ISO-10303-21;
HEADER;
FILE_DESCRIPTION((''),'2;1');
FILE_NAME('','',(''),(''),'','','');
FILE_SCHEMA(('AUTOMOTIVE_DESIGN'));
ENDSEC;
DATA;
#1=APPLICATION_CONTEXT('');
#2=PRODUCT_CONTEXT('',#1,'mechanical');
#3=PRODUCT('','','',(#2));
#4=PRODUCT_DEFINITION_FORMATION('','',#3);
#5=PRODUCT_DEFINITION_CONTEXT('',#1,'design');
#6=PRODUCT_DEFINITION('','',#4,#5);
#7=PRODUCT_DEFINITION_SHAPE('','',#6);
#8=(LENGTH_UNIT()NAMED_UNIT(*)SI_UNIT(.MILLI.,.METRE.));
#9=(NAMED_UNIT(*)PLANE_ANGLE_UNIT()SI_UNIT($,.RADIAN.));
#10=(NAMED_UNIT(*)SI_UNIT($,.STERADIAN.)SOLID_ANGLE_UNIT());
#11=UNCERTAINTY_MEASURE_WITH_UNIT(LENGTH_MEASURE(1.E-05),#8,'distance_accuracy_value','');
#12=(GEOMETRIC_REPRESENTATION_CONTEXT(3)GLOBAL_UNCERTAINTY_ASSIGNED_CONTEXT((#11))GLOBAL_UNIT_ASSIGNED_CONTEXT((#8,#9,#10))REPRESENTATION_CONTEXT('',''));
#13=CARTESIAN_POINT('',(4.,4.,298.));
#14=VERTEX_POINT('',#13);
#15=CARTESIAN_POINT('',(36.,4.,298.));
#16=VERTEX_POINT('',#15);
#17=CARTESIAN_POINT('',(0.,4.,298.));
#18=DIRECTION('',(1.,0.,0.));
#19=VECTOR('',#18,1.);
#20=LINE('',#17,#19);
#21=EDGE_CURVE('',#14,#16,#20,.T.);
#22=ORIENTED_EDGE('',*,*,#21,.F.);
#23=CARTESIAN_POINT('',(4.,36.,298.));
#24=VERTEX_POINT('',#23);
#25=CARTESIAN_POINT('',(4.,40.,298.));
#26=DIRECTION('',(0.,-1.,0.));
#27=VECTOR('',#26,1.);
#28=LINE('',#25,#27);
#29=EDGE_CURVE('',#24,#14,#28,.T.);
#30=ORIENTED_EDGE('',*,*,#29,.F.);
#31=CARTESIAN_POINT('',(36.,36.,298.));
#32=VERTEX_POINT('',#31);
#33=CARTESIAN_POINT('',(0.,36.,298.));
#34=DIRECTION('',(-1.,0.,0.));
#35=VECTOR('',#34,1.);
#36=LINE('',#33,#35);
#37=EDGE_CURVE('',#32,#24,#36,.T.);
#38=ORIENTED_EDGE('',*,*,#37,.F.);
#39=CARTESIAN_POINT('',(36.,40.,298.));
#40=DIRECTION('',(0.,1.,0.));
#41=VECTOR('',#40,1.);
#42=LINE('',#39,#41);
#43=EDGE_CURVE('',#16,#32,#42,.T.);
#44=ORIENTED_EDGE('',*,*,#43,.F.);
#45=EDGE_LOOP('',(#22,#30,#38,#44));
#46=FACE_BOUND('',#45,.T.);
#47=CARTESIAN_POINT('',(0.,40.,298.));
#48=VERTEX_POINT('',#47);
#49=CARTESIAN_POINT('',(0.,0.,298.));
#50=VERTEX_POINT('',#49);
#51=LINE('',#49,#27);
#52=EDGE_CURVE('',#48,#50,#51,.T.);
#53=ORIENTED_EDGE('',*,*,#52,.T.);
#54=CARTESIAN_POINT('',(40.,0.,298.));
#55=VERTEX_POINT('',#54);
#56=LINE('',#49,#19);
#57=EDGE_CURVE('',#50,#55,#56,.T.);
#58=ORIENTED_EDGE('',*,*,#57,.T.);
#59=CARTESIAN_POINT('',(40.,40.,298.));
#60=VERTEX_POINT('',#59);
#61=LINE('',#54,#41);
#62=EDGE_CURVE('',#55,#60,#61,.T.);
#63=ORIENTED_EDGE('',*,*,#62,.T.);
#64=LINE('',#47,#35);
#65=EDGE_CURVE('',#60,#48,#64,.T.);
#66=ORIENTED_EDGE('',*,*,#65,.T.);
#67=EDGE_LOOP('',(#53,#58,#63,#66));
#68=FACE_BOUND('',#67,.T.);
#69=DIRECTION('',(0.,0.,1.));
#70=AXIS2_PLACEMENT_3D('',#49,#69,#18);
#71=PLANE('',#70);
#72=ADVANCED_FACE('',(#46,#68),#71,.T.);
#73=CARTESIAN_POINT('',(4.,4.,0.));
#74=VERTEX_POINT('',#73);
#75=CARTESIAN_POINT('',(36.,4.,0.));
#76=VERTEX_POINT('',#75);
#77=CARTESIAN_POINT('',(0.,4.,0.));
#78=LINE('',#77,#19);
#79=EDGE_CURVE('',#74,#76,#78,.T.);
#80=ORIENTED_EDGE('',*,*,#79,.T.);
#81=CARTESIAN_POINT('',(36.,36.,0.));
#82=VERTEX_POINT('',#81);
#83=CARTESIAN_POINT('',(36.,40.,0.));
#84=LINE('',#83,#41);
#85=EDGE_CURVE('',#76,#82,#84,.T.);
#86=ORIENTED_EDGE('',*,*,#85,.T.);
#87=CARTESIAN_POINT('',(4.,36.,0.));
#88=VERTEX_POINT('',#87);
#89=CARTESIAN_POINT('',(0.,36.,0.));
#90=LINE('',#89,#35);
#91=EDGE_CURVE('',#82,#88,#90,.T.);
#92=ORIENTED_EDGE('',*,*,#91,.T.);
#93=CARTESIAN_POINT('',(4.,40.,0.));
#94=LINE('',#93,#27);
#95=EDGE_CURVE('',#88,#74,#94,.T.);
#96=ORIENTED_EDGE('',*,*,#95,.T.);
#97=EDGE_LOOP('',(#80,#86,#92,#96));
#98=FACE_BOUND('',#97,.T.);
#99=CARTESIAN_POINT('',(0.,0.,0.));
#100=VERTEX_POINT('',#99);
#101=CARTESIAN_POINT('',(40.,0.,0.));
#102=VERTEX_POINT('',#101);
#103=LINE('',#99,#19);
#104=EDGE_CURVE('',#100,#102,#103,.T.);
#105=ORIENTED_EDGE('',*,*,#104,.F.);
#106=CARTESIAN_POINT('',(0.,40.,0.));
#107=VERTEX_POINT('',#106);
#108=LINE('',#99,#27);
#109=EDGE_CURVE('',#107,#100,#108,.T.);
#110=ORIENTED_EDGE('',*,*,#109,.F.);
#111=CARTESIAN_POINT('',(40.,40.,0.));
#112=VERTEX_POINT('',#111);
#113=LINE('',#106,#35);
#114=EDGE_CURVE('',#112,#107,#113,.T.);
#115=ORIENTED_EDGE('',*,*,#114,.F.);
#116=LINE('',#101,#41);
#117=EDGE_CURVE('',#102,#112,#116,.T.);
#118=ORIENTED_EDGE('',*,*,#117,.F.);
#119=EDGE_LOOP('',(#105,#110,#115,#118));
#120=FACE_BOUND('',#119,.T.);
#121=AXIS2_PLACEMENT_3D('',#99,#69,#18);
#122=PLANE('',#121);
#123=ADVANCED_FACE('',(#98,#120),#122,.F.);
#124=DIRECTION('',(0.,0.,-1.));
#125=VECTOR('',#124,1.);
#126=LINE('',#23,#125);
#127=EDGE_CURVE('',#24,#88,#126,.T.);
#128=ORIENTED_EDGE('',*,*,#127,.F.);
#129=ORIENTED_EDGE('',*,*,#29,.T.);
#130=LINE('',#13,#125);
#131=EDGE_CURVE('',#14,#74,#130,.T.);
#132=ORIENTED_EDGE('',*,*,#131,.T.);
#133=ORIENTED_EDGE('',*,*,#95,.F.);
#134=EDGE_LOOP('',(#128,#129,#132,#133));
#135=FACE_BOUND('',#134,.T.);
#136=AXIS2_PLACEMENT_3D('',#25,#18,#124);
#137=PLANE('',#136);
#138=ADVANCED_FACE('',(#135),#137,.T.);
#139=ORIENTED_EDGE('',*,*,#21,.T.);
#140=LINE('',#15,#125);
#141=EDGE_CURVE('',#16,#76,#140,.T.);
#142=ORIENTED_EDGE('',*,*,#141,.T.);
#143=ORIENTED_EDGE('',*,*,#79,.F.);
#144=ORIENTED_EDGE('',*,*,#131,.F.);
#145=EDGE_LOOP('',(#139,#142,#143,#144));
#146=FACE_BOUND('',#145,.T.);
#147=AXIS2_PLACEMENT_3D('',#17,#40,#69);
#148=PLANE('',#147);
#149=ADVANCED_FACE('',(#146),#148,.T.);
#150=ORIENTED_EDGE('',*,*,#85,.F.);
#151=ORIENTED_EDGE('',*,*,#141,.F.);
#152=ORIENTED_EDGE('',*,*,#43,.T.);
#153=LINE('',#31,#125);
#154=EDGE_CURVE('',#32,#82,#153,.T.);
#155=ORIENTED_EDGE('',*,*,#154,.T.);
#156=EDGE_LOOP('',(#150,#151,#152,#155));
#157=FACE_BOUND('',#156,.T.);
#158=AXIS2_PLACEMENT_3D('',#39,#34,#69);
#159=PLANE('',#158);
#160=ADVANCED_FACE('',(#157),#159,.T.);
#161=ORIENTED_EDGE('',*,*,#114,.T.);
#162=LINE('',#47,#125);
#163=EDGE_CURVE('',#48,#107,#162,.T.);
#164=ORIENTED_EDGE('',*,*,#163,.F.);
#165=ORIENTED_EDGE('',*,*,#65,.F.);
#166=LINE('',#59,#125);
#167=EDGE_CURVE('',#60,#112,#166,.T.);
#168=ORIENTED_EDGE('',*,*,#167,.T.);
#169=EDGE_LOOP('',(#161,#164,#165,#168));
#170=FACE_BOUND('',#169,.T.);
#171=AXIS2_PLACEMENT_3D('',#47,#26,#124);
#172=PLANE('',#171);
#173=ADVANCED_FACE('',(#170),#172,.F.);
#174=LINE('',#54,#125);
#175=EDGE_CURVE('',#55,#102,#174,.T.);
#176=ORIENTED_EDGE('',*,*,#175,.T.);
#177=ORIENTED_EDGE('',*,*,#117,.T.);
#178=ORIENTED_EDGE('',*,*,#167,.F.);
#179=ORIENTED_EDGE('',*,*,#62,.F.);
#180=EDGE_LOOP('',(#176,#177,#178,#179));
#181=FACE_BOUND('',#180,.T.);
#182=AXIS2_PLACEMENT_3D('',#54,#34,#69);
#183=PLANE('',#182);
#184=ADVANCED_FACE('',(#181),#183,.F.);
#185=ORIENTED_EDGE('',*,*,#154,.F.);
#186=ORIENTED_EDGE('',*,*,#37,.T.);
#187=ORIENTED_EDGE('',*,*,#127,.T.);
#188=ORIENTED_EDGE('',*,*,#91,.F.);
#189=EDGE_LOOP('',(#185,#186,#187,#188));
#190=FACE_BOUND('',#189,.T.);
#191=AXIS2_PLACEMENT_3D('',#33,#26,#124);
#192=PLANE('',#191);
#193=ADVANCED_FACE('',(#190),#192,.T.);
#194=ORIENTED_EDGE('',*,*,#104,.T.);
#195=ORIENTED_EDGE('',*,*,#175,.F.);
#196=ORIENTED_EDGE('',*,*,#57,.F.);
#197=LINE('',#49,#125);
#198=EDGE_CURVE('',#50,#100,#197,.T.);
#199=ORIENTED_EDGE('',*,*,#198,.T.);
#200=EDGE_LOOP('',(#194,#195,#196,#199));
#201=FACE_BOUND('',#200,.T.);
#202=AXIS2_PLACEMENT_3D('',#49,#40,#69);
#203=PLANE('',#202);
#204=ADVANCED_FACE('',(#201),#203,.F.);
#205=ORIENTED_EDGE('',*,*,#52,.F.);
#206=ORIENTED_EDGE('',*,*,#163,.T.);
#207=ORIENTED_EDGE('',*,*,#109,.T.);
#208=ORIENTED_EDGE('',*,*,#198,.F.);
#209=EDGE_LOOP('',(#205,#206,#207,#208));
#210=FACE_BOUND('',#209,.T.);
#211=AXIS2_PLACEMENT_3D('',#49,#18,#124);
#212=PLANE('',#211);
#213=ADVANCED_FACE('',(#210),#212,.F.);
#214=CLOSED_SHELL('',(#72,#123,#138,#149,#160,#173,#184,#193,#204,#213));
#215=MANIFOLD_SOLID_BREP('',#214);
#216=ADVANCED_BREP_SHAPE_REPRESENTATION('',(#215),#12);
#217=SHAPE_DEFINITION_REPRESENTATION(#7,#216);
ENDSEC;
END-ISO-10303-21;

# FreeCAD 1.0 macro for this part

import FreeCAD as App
import Part
import Sketcher

V = App.Vector

doc = App.newDocument("Part")
body = doc.addObject("PartDesign::Body", "Body")

sketch1 = body.newObject("Sketcher::SketchObject", "Sketch")
sketch1.AttachmentSupport = (doc.getObject("XY_Plane"), [""])
sketch1.MapMode = "FlatFace"
sketch1.addGeometry([
    Part.LineSegment(V(0, 40, 0), V(0, 0, 0)),
    Part.LineSegment(V(0, 0, 0), V(40, 0, 0)),
    Part.LineSegment(V(40, 0, 0), V(40, 40, 0)),
    Part.LineSegment(V(40, 40, 0), V(0, 40, 0)),
    Part.LineSegment(V(36, 4, 0), V(4, 4, 0)),
    Part.LineSegment(V(4, 4, 0), V(4, 36, 0)),
    Part.LineSegment(V(4, 36, 0), V(36, 36, 0)),
    Part.LineSegment(V(36, 36, 0), V(36, 4, 0)),
], False)
sketch1.addConstraint([
    Sketcher.Constraint("Coincident", 0, 2, 1, 1),
    Sketcher.Constraint("Coincident", 1, 2, 2, 1),
    Sketcher.Constraint("Coincident", 2, 2, 3, 1),
    Sketcher.Constraint("Coincident", 3, 2, 0, 1),
    Sketcher.Constraint("Coincident", 4, 2, 5, 1),
    Sketcher.Constraint("Coincident", 5, 2, 6, 1),
    Sketcher.Constraint("Coincident", 6, 2, 7, 1),
    Sketcher.Constraint("Coincident", 7, 2, 4, 1),
    Sketcher.Constraint("Vertical", 0),
    Sketcher.Constraint("Horizontal", 1),
    Sketcher.Constraint("Vertical", 2),
    Sketcher.Constraint("Horizontal", 3),
    Sketcher.Constraint("Horizontal", 4),
    Sketcher.Constraint("Vertical", 5),
    Sketcher.Constraint("Horizontal", 6),
    Sketcher.Constraint("Vertical", 7),
    Sketcher.Constraint("Coincident", 0, 2, -1, 1),
    Sketcher.Constraint("Equal", 3, 0),
    Sketcher.Constraint("Equal", 6, 5),
    Sketcher.Constraint("DistanceX", 1, 1, 1, 2, 40.0),
    Sketcher.Constraint("DistanceX", 4, 2, 4, 1, 32.0),
    Sketcher.Constraint("DistanceX", -1, 1, 4, 2, 4.0),
    Sketcher.Constraint("DistanceY", -1, 1, 4, 2, 4.0),
])
pad1 = body.newObject("PartDesign::Pad", "Pad")
pad1.Profile = sketch1
pad1.Length = 298

doc.recompute()
